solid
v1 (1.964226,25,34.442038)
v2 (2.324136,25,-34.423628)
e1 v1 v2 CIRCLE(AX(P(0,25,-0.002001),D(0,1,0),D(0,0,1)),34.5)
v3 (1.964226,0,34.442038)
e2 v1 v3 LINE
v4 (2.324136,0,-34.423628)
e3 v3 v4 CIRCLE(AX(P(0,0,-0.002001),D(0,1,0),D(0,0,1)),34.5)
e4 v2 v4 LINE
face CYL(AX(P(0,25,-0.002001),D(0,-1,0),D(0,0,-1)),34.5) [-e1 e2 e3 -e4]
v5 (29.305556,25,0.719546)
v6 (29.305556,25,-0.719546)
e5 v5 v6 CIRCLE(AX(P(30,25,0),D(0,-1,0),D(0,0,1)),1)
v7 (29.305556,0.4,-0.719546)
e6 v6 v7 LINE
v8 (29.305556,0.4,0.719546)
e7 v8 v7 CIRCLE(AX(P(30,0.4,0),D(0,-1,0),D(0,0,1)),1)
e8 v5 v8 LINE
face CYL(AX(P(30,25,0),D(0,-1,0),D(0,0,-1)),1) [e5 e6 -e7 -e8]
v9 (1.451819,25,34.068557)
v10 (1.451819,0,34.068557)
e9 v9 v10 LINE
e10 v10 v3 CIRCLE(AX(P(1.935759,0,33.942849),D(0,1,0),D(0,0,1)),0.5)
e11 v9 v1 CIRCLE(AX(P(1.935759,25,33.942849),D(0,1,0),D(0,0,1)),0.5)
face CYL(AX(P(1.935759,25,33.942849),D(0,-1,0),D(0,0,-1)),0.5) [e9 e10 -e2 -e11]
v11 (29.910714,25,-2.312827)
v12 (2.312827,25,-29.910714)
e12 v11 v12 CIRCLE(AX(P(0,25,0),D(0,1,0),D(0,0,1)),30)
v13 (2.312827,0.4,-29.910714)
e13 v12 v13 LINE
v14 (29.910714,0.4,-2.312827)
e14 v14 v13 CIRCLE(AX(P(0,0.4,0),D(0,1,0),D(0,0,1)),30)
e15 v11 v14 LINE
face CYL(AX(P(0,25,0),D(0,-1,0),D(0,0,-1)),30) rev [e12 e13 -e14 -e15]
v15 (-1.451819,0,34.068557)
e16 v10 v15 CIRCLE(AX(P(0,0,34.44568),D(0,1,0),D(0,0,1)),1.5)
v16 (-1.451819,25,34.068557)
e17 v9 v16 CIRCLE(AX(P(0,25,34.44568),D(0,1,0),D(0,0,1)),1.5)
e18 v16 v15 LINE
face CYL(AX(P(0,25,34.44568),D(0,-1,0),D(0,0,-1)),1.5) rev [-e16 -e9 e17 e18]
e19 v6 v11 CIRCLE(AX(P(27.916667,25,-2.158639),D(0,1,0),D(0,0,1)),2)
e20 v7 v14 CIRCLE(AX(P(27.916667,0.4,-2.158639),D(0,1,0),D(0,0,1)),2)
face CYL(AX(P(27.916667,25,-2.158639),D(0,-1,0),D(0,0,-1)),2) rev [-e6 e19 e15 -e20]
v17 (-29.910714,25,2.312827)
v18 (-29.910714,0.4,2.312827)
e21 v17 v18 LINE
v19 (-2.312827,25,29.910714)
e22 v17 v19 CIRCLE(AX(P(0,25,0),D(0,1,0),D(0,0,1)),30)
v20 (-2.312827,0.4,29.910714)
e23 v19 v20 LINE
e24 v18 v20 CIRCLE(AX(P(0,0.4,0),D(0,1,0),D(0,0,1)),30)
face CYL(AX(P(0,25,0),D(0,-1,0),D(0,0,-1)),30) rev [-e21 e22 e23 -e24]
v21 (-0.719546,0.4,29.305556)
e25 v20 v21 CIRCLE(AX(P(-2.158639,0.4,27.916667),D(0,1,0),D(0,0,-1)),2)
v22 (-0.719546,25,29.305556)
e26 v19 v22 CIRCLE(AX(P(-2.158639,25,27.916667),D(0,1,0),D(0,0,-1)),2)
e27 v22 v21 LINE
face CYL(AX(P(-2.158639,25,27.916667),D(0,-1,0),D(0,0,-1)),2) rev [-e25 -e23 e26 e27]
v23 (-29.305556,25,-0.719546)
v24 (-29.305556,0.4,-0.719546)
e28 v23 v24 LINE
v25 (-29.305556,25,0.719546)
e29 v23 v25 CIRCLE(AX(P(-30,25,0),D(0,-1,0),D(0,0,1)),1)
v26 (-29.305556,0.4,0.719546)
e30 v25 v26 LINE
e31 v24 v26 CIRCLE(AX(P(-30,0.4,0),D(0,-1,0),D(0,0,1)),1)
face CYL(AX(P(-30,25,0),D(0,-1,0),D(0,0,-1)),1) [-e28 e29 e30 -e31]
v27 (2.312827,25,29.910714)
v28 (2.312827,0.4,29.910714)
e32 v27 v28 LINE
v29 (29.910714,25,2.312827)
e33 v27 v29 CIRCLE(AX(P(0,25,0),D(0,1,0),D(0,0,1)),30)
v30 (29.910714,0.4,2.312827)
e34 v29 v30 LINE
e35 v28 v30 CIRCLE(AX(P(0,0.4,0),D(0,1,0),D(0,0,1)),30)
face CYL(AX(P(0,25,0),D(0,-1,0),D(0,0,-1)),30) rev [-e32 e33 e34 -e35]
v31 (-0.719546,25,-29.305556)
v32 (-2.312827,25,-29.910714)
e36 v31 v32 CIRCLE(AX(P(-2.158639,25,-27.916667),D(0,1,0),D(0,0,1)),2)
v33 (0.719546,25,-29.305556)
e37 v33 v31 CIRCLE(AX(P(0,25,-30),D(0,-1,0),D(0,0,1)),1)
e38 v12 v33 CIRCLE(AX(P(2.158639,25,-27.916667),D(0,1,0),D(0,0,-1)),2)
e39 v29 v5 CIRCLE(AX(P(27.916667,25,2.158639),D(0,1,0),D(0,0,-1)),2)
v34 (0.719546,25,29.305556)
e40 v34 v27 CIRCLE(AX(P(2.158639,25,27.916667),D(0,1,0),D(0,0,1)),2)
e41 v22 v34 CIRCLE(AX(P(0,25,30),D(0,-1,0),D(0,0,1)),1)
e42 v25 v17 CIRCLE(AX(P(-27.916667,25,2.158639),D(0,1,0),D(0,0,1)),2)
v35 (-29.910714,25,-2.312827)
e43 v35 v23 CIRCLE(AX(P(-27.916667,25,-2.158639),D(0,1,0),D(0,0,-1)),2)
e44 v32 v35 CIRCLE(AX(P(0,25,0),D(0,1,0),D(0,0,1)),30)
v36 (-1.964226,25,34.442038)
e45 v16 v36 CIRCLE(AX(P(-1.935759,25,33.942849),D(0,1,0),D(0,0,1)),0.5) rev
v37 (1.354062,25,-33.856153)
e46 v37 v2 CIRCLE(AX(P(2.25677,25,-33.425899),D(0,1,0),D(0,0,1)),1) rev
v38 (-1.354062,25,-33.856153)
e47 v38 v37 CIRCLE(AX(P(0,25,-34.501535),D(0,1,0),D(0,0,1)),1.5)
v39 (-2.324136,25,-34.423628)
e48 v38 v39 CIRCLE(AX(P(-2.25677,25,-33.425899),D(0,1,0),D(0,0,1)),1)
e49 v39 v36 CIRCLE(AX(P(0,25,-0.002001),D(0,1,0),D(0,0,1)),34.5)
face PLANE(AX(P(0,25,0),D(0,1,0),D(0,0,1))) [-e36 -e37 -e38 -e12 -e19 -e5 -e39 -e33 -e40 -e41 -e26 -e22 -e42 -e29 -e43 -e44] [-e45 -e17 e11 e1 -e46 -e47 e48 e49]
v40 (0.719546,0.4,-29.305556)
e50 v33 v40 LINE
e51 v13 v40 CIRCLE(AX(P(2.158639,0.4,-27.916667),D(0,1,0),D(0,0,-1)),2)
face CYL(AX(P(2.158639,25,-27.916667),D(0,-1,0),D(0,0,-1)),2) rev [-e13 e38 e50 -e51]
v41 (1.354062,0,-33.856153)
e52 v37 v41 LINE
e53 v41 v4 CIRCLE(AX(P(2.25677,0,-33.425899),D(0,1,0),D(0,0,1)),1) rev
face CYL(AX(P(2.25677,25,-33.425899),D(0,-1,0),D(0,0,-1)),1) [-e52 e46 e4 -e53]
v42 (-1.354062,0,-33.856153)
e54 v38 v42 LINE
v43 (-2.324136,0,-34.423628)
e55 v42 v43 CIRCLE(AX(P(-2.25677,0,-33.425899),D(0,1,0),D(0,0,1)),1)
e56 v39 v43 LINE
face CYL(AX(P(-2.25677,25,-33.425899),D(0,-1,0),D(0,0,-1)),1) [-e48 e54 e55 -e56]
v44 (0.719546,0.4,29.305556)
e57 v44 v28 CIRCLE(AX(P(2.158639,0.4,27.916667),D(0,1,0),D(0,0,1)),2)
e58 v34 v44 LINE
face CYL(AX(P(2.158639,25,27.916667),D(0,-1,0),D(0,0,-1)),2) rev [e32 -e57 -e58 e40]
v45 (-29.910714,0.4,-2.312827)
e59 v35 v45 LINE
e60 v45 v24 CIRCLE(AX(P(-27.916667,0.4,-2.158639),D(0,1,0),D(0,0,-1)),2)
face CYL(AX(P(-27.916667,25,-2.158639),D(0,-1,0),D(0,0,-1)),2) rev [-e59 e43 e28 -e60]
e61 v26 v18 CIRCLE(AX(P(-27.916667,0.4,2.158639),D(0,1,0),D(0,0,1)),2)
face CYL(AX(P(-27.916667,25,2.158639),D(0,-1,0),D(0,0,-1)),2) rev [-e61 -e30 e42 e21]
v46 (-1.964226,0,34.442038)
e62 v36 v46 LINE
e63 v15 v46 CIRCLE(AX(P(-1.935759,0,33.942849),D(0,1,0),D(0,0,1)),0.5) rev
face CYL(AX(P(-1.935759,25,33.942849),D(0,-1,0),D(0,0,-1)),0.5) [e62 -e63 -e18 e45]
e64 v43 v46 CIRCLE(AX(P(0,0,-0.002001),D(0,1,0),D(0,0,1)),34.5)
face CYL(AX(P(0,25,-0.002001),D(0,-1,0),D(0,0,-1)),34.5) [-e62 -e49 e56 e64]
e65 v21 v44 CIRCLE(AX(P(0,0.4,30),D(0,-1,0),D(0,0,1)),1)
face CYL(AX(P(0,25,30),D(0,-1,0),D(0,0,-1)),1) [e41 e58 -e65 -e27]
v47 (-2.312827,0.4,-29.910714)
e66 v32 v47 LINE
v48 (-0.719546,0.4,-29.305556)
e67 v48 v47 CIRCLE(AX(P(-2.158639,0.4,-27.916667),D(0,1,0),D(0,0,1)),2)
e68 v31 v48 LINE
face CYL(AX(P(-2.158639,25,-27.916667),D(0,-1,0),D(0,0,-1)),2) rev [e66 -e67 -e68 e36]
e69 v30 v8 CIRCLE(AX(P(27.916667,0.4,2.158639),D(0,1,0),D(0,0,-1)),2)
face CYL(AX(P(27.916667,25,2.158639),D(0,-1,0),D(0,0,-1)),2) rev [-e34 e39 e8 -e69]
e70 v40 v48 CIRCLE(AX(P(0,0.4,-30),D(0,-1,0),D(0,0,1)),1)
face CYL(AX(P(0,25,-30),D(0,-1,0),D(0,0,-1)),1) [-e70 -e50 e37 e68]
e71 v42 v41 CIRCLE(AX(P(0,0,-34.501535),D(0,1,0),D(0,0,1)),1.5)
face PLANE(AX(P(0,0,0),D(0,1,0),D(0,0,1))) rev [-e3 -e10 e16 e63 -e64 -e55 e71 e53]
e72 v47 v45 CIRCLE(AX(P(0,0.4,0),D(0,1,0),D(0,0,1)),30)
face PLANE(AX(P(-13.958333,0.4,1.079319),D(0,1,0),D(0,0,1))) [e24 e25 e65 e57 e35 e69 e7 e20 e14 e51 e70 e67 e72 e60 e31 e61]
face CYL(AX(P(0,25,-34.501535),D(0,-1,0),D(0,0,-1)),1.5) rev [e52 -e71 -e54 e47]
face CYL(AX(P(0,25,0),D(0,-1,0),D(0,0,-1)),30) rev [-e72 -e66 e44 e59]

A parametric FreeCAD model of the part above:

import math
import FreeCAD as App
import Part
import Sketcher
from FreeCAD import Vector

doc = App.newDocument("Part")
params = doc.addObject("Spreadsheet::Sheet", "Params")
for row, (alias, value) in enumerate([
    ("sketch1_radius", "1 mm"),
    ("sketch1_radius2", "0.5 mm"),
    ("sketch1_radius3", "34.5 mm"),
    ("sketch1_radius4", "1.5 mm"),
    ("pad1_length", "25 mm"),
    ("sketch2_radius", "30 mm"),
    ("sketch2_radius2", "2 mm"),
    ("sketch2_radius3", "1 mm"),
    ("sketch3_radius", "30 mm"),
    ("sketch3_radius2", "2 mm"),
    ("sketch3_radius3", "1 mm"),
    ("pad2_length", "0.4 mm"),
], start=1):
    params.set(f"A{row}", alias)
    params.set(f"B{row}", "=" + value)
    params.setAlias(f"B{row}", alias)

body = doc.addObject("PartDesign::Body", "Body")

sketch1 = body.newObject("Sketcher::SketchObject", "Sketch")
sketch1.AttachmentSupport = (doc.getObject("XZ_Plane"), [""])
sketch1.MapMode = "FlatFace"
sketch1.addGeometry([
    Part.ArcOfCircle(Part.Circle(Vector(1.9, 33.9, 0), Vector(0, 0, 1), 0.5), math.radians(87), math.radians(165)),
    Part.ArcOfCircle(Part.Circle(Vector(0, 0, 0), Vector(0, 0, 1), 34.5), math.radians(-8), math.radians(87)),
    Part.ArcOfCircle(Part.Circle(Vector(0, 0, 0), Vector(0, 0, 1), 34.5), math.radians(-86), math.radians(-8)),
    Part.ArcOfCircle(Part.Circle(Vector(2.3, -33.4, 0), Vector(0, 0, 1), 1), math.radians(-155), math.radians(-86)),
    Part.ArcOfCircle(Part.Circle(Vector(0, -34.5, 0), Vector(0, 0, 1), 1.5), math.radians(25), math.radians(155)),
    Part.ArcOfCircle(Part.Circle(Vector(-2.3, -33.4, 0), Vector(0, 0, 1), 1), math.radians(-94), math.radians(-25)),
    Part.ArcOfCircle(Part.Circle(Vector(0, 0, 0), Vector(0, 0, 1), 34.5), math.radians(-172), math.radians(-94)),
    Part.ArcOfCircle(Part.Circle(Vector(0, 0, 0), Vector(0, 0, 1), 34.5), math.radians(93), math.radians(188)),
    Part.ArcOfCircle(Part.Circle(Vector(-1.9, 33.9, 0), Vector(0, 0, 1), 0.5), math.radians(15), math.radians(93)),
    Part.ArcOfCircle(Part.Circle(Vector(0, 34.4, 0), Vector(0, 0, 1), 1.5), math.radians(-165), math.radians(-15)),
    Part.ArcOfCircle(Part.Circle(Vector(0, 0, 0), Vector(0, 0, 1), 4.5), math.radians(-57), math.radians(237)),
    Part.LineSegment(Vector(-2.4, -3.8, 0), Vector(2.4, -3.8, 0)),
], False)
sketch1.addConstraint([
    Sketcher.Constraint("Tangent", 0, 1, 1, 2),
    Sketcher.Constraint("Tangent", 1, 1, 2, 2),
    Sketcher.Constraint("Tangent", 2, 1, 3, 2),
    Sketcher.Constraint("Tangent", 3, 1, 4, 1),
    Sketcher.Constraint("Tangent", 4, 2, 5, 2),
    Sketcher.Constraint("Tangent", 5, 1, 6, 2),
    Sketcher.Constraint("Tangent", 6, 1, 7, 2),
    Sketcher.Constraint("Tangent", 7, 1, 8, 2),
    Sketcher.Constraint("Tangent", 8, 1, 9, 1),
    Sketcher.Constraint("Tangent", 9, 2, 0, 2),
    Sketcher.Constraint("Coincident", 10, 1, 11, 2),
    Sketcher.Constraint("Coincident", 11, 1, 10, 2),
    Sketcher.Constraint("Horizontal", 11),
    Sketcher.Constraint("Coincident", 6, 3, 1, 3),
    Sketcher.Constraint("Coincident", 10, 3, 1, 3),
    Sketcher.Constraint("Equal", 1, 2),
    Sketcher.Constraint("Equal", 3, 5),
    Sketcher.Constraint("Equal", 2, 6),
    Sketcher.Constraint("Equal", 6, 7),
    Sketcher.Constraint("Equal", 0, 8),
    Sketcher.Constraint("Equal", 4, 9),
    Sketcher.Constraint("Symmetric", 3, 3, 5, 3, -2),
    Sketcher.Constraint("PointOnObject", 9, 3, -2),
    Sketcher.Constraint("Horizontal", 1, 1, 6, 1),
    Sketcher.Constraint("Radius", 3, 1.0),
    Sketcher.Constraint("Radius", 0, 0.5),
    Sketcher.Constraint("Radius", 1, 34.5),
    Sketcher.Constraint("Radius", 4, 1.5),
    Sketcher.Constraint("DistanceX", 11, 1, 11, 2, 4.834),
    Sketcher.Constraint("DistanceY", 1, 3, -1, 1, 0.002001),
    Sketcher.Constraint("Radius", 10, 4.491513),
    Sketcher.Constraint("DistanceY", 3, 3, -1, 1, 33.425899),
    Sketcher.Constraint("DistanceX", -1, 1, 0, 3, 1.935759),
    Sketcher.Constraint("DistanceX", -1, 1, 1, 1, 34.198225),
])
sketch1.setExpression("Constraints[24]", "Params.sketch1_radius")
sketch1.setExpression("Constraints[25]", "Params.sketch1_radius2")
sketch1.setExpression("Constraints[26]", "Params.sketch1_radius3")
sketch1.setExpression("Constraints[27]", "Params.sketch1_radius4")
pad1 = body.newObject("PartDesign::Pad", "Pad")
pad1.Profile = sketch1
pad1.setExpression("Length", "Params.pad1_length")
pad1.Reversed = True

sketch2 = body.newObject("Sketcher::SketchObject", "Sketch001")
sketch2.AttachmentSupport = (doc.getObject("XZ_Plane"), [""])
sketch2.MapMode = "FlatFace"
sketch2.addGeometry([
    Part.ArcOfCircle(Part.Circle(Vector(0, 0, 0), Vector(0, 0, 1), 30), math.radians(94), math.radians(176)),
    Part.ArcOfCircle(Part.Circle(Vector(-2.2, 27.9, 0), Vector(0, 0, 1), 2), math.radians(44), math.radians(94)),
    Part.ArcOfCircle(Part.Circle(Vector(0, 30, 0), Vector(0, 0, 1), 1), math.radians(-136), math.radians(-44)),
    Part.ArcOfCircle(Part.Circle(Vector(2.2, 27.9, 0), Vector(0, 0, 1), 2), math.radians(86), math.radians(136)),
    Part.ArcOfCircle(Part.Circle(Vector(0, 0, 0), Vector(0, 0, 1), 30), math.radians(4), math.radians(86)),
    Part.ArcOfCircle(Part.Circle(Vector(27.9, 2.2, 0), Vector(0, 0, 1), 2), math.radians(-46), math.radians(4)),
    Part.ArcOfCircle(Part.Circle(Vector(30, 0, 0), Vector(0, 0, 1), 1), math.radians(134), math.radians(226)),
    Part.ArcOfCircle(Part.Circle(Vector(27.9, -2.2, 0), Vector(0, 0, 1), 2), math.radians(-4), math.radians(46)),
    Part.ArcOfCircle(Part.Circle(Vector(0, 0, 0), Vector(0, 0, 1), 30), math.radians(-86), math.radians(-4)),
    Part.ArcOfCircle(Part.Circle(Vector(2.2, -27.9, 0), Vector(0, 0, 1), 2), math.radians(-136), math.radians(-86)),
    Part.ArcOfCircle(Part.Circle(Vector(0, -30, 0), Vector(0, 0, 1), 1), math.radians(44), math.radians(136)),
    Part.ArcOfCircle(Part.Circle(Vector(-2.2, -27.9, 0), Vector(0, 0, 1), 2), math.radians(-94), math.radians(-44)),
    Part.ArcOfCircle(Part.Circle(Vector(0, 0, 0), Vector(0, 0, 1), 30), math.radians(-176), math.radians(-94)),
    Part.ArcOfCircle(Part.Circle(Vector(-27.9, -2.2, 0), Vector(0, 0, 1), 2), math.radians(134), math.radians(184)),
    Part.ArcOfCircle(Part.Circle(Vector(-30, 0, 0), Vector(0, 0, 1), 1), math.radians(-46), math.radians(46)),
    Part.ArcOfCircle(Part.Circle(Vector(-27.9, 2.2, 0), Vector(0, 0, 1), 2), math.radians(176), math.radians(226)),
], False)
sketch2.addConstraint([
    Sketcher.Constraint("Tangent", 0, 1, 1, 2),
    Sketcher.Constraint("Tangent", 1, 1, 2, 1),
    Sketcher.Constraint("Tangent", 2, 2, 3, 2),
    Sketcher.Constraint("Tangent", 3, 1, 4, 2),
    Sketcher.Constraint("Tangent", 4, 1, 5, 2),
    Sketcher.Constraint("Tangent", 5, 1, 6, 1),
    Sketcher.Constraint("Tangent", 6, 2, 7, 2),
    Sketcher.Constraint("Tangent", 7, 1, 8, 2),
    Sketcher.Constraint("Tangent", 8, 1, 9, 2),
    Sketcher.Constraint("Tangent", 9, 1, 10, 1),
    Sketcher.Constraint("Tangent", 10, 2, 11, 2),
    Sketcher.Constraint("Tangent", 11, 1, 12, 2),
    Sketcher.Constraint("Tangent", 12, 1, 13, 2),
    Sketcher.Constraint("Tangent", 13, 1, 14, 1),
    Sketcher.Constraint("Tangent", 14, 2, 15, 2),
    Sketcher.Constraint("Tangent", 15, 1, 0, 2),
    Sketcher.Constraint("Coincident", 0, 3, -1, 1),
    Sketcher.Constraint("Coincident", 4, 3, -1, 1),
    Sketcher.Constraint("Coincident", 8, 3, -1, 1),
    Sketcher.Constraint("Coincident", 12, 3, -1, 1),
    Sketcher.Constraint("Equal", 1, 3),
    Sketcher.Constraint("Equal", 0, 4),
    Sketcher.Constraint("Equal", 3, 5),
    Sketcher.Constraint("Equal", 2, 6),
    Sketcher.Constraint("Equal", 5, 7),
    Sketcher.Constraint("Equal", 4, 8),
    Sketcher.Constraint("Equal", 7, 9),
    Sketcher.Constraint("Equal", 6, 10),
    Sketcher.Constraint("Equal", 9, 11),
    Sketcher.Constraint("Equal", 8, 12),
    Sketcher.Constraint("Equal", 11, 13),
    Sketcher.Constraint("Equal", 10, 14),
    Sketcher.Constraint("Equal", 13, 15),
    Sketcher.Constraint("Symmetric", 2, 3, 10, 3, -1, 1),
    Sketcher.Constraint("Symmetric", 6, 3, 14, 3, -1, 1),
    Sketcher.Constraint("PointOnObject", 2, 3, -2),
    Sketcher.Constraint("PointOnObject", 6, 3, -1),
    Sketcher.Constraint("Radius", 0, 30.0),
    Sketcher.Constraint("Radius", 1, 2.0),
    Sketcher.Constraint("Radius", 2, 1.0),
    Sketcher.Constraint("DistanceY", -1, 1, 2, 3, 30.0),
    Sketcher.Constraint("DistanceX", -1, 1, 6, 3, 30.0),
])
sketch2.setExpression("Constraints[37]", "Params.sketch2_radius")
sketch2.setExpression("Constraints[38]", "Params.sketch2_radius2")
sketch2.setExpression("Constraints[39]", "Params.sketch2_radius3")
pocket1 = body.newObject("PartDesign::Pocket", "Pocket")
pocket1.Profile = sketch2
pocket1.Type = "ThroughAll"

sketch3 = body.newObject("Sketcher::SketchObject", "Sketch002")
sketch3.AttachmentSupport = (doc.getObject("XZ_Plane"), [""])
sketch3.MapMode = "FlatFace"
sketch3.addGeometry([
    Part.ArcOfCircle(Part.Circle(Vector(0, 0, 0), Vector(0, 0, 1), 30), math.radians(94), math.radians(176)),
    Part.ArcOfCircle(Part.Circle(Vector(-2.2, 27.9, 0), Vector(0, 0, 1), 2), math.radians(44), math.radians(94)),
    Part.ArcOfCircle(Part.Circle(Vector(0, 30, 0), Vector(0, 0, 1), 1), math.radians(-136), math.radians(-44)),
    Part.ArcOfCircle(Part.Circle(Vector(2.2, 27.9, 0), Vector(0, 0, 1), 2), math.radians(86), math.radians(136)),
    Part.ArcOfCircle(Part.Circle(Vector(0, 0, 0), Vector(0, 0, 1), 30), math.radians(4), math.radians(86)),
    Part.ArcOfCircle(Part.Circle(Vector(27.9, 2.2, 0), Vector(0, 0, 1), 2), math.radians(-46), math.radians(4)),
    Part.ArcOfCircle(Part.Circle(Vector(30, 0, 0), Vector(0, 0, 1), 1), math.radians(134), math.radians(226)),
    Part.ArcOfCircle(Part.Circle(Vector(27.9, -2.2, 0), Vector(0, 0, 1), 2), math.radians(-4), math.radians(46)),
    Part.ArcOfCircle(Part.Circle(Vector(0, 0, 0), Vector(0, 0, 1), 30), math.radians(-86), math.radians(-4)),
    Part.ArcOfCircle(Part.Circle(Vector(2.2, -27.9, 0), Vector(0, 0, 1), 2), math.radians(-136), math.radians(-86)),
    Part.ArcOfCircle(Part.Circle(Vector(0, -30, 0), Vector(0, 0, 1), 1), math.radians(44), math.radians(136)),
    Part.ArcOfCircle(Part.Circle(Vector(-2.2, -27.9, 0), Vector(0, 0, 1), 2), math.radians(-94), math.radians(-44)),
    Part.ArcOfCircle(Part.Circle(Vector(0, 0, 0), Vector(0, 0, 1), 30), math.radians(-176), math.radians(-94)),
    Part.ArcOfCircle(Part.Circle(Vector(-27.9, -2.2, 0), Vector(0, 0, 1), 2), math.radians(134), math.radians(184)),
    Part.ArcOfCircle(Part.Circle(Vector(-30, 0, 0), Vector(0, 0, 1), 1), math.radians(-46), math.radians(46)),
    Part.ArcOfCircle(Part.Circle(Vector(-27.9, 2.2, 0), Vector(0, 0, 1), 2), math.radians(176), math.radians(226)),
], False)
sketch3.addConstraint([
    Sketcher.Constraint("Tangent", 0, 1, 1, 2),
    Sketcher.Constraint("Tangent", 1, 1, 2, 1),
    Sketcher.Constraint("Tangent", 2, 2, 3, 2),
    Sketcher.Constraint("Tangent", 3, 1, 4, 2),
    Sketcher.Constraint("Tangent", 4, 1, 5, 2),
    Sketcher.Constraint("Tangent", 5, 1, 6, 1),
    Sketcher.Constraint("Tangent", 6, 2, 7, 2),
    Sketcher.Constraint("Tangent", 7, 1, 8, 2),
    Sketcher.Constraint("Tangent", 8, 1, 9, 2),
    Sketcher.Constraint("Tangent", 9, 1, 10, 1),
    Sketcher.Constraint("Tangent", 10, 2, 11, 2),
    Sketcher.Constraint("Tangent", 11, 1, 12, 2),
    Sketcher.Constraint("Tangent", 12, 1, 13, 2),
    Sketcher.Constraint("Tangent", 13, 1, 14, 1),
    Sketcher.Constraint("Tangent", 14, 2, 15, 2),
    Sketcher.Constraint("Tangent", 15, 1, 0, 2),
    Sketcher.Constraint("Coincident", 0, 3, -1, 1),
    Sketcher.Constraint("Coincident", 4, 3, -1, 1),
    Sketcher.Constraint("Coincident", 8, 3, -1, 1),
    Sketcher.Constraint("Coincident", 12, 3, -1, 1),
    Sketcher.Constraint("Equal", 1, 3),
    Sketcher.Constraint("Equal", 0, 4),
    Sketcher.Constraint("Equal", 3, 5),
    Sketcher.Constraint("Equal", 2, 6),
    Sketcher.Constraint("Equal", 5, 7),
    Sketcher.Constraint("Equal", 4, 8),
    Sketcher.Constraint("Equal", 7, 9),
    Sketcher.Constraint("Equal", 6, 10),
    Sketcher.Constraint("Equal", 9, 11),
    Sketcher.Constraint("Equal", 8, 12),
    Sketcher.Constraint("Equal", 11, 13),
    Sketcher.Constraint("Equal", 10, 14),
    Sketcher.Constraint("Equal", 13, 15),
    Sketcher.Constraint("Symmetric", 2, 3, 10, 3, -1, 1),
    Sketcher.Constraint("Symmetric", 6, 3, 14, 3, -1, 1),
    Sketcher.Constraint("PointOnObject", 2, 3, -2),
    Sketcher.Constraint("PointOnObject", 6, 3, -1),
    Sketcher.Constraint("Radius", 0, 30.0),
    Sketcher.Constraint("Radius", 1, 2.0),
    Sketcher.Constraint("Radius", 2, 1.0),
    Sketcher.Constraint("DistanceY", -1, 1, 2, 3, 30.0),
    Sketcher.Constraint("DistanceX", -1, 1, 6, 3, 30.0),
])
sketch3.setExpression("Constraints[37]", "Params.sketch3_radius")
sketch3.setExpression("Constraints[38]", "Params.sketch3_radius2")
sketch3.setExpression("Constraints[39]", "Params.sketch3_radius3")
pad2 = body.newObject("PartDesign::Pad", "Pad001")
pad2.Profile = sketch3
pad2.setExpression("Length", "Params.pad2_length")
pad2.Reversed = True

doc.recompute()
